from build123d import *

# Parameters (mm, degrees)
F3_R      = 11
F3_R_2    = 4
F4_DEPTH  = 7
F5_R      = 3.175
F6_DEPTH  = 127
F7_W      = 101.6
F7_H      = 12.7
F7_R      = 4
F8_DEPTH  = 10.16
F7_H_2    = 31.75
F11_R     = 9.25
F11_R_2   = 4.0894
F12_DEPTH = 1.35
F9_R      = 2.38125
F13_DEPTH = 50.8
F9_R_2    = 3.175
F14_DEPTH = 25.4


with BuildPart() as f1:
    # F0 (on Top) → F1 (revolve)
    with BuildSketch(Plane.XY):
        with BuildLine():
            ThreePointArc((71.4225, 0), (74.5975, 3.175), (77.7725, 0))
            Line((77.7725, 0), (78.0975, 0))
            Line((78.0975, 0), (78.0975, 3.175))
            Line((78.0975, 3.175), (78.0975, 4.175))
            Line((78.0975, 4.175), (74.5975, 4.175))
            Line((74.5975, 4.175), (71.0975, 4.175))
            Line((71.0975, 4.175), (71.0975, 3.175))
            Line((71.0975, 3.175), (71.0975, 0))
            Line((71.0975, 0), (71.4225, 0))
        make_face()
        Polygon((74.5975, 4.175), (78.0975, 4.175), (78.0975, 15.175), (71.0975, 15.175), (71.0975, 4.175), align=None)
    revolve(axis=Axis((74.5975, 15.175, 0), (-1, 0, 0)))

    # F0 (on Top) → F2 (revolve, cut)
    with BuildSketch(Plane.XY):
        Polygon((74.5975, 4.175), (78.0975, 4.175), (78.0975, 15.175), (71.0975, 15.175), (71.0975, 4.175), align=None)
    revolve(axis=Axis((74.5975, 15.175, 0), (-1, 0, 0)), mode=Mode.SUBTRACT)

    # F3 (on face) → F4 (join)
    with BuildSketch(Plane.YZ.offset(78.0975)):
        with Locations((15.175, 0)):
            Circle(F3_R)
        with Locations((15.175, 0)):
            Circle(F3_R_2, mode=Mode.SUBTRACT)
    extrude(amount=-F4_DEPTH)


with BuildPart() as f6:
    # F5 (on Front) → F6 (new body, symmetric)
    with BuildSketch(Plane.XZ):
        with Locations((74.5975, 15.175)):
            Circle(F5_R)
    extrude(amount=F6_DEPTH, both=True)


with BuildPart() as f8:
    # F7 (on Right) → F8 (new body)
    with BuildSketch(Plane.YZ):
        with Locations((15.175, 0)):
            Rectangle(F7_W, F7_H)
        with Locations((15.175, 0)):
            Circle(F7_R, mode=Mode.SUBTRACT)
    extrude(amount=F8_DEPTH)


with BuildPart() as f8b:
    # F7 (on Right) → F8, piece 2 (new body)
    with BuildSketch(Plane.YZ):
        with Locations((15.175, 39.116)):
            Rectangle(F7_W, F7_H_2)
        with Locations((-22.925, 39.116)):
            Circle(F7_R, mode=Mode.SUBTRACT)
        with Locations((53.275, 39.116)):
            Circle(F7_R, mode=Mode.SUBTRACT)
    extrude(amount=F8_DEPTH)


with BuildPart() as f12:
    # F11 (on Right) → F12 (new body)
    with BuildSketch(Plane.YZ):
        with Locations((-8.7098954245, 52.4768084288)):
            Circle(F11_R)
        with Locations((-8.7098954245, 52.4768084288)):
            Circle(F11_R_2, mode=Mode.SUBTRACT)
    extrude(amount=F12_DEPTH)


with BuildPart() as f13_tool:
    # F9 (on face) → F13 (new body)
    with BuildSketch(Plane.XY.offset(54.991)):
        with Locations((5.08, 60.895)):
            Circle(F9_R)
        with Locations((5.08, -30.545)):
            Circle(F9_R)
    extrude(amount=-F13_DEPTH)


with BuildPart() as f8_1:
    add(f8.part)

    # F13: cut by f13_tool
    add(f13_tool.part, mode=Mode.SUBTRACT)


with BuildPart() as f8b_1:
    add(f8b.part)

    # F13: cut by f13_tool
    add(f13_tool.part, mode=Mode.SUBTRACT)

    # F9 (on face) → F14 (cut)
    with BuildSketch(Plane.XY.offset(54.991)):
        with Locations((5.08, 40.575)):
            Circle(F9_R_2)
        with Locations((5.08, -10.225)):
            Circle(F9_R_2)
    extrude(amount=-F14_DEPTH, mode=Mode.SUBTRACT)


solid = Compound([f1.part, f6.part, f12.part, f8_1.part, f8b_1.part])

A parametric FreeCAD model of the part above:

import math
import FreeCAD as App
import Part
import Sketcher

V = App.Vector
Q = App.Units.Quantity

doc = App.newDocument("Part")
body = doc.addObject("PartDesign::Body", "Body")

sketch1 = body.newObject("Sketcher::SketchObject", "Sketch")
sketch1.AttachmentSupport = (doc.getObject("XY_Plane"), [""])
sketch1.MapMode = "FlatFace"
sketch1.addGeometry([
    Part.ArcOfCircle(Part.Circle(V(74.5975, 0, 0), V(0, 0, 1), 3.175), math.radians(0), math.radians(180)),
    Part.LineSegment(V(77.7725, 0, 0), V(78.0975, 0, 0)),
    Part.LineSegment(V(78.0975, 0, 0), V(78.0975, 15.175, 0)),
    Part.LineSegment(V(78.0975, 15.175, 0), V(71.0975, 15.175, 0)),
    Part.LineSegment(V(71.0975, 15.175, 0), V(71.0975, 0, 0)),
    Part.LineSegment(V(71.0975, 0, 0), V(71.4225, 0, 0)),
], False)
sketch1.addGeometry(Part.LineSegment(V(78.0975, 15.175, 0), V(71.0975, 15.175, 0)), True)
sketch1.addConstraint([
    Sketcher.Constraint("Coincident", 0, 1, 1, 1),
    Sketcher.Constraint("Coincident", 1, 2, 2, 1),
    Sketcher.Constraint("Coincident", 2, 2, 3, 1),
    Sketcher.Constraint("Coincident", 3, 2, 4, 1),
    Sketcher.Constraint("Coincident", 4, 2, 5, 1),
    Sketcher.Constraint("Coincident", 5, 2, 0, 2),
    Sketcher.Constraint("Horizontal", 1),
    Sketcher.Constraint("Vertical", 2),
    Sketcher.Constraint("Horizontal", 3),
    Sketcher.Constraint("Vertical", 4),
    Sketcher.Constraint("Horizontal", 5),
    Sketcher.Constraint("Horizontal", 6),
    Sketcher.Constraint("Coincident", 6, 1, 2, 2),
    Sketcher.Constraint("PointOnObject", 0, 3, -1),
    Sketcher.Constraint("PointOnObject", 0, 1, -1),
    Sketcher.Constraint("PointOnObject", 4, 2, -1),
    Sketcher.Constraint("Vertical", 4, 2, 6, 2),
    Sketcher.Constraint("Equal", 1, 5),
    Sketcher.Constraint("Radius", 0, Q("0.125 in")),
    Sketcher.Constraint("DistanceX", 1, 1, 1, 2, Q("0.325 mm")),
    Sketcher.Constraint("DistanceY", 2, 1, 2, 2, Q("15.175 mm")),
    Sketcher.Constraint("DistanceX", -1, 1, 0, 3, Q("74.5975 mm")),
])
revolution = body.newObject("PartDesign::Revolution", "Revolution")
revolution.Profile = sketch1
revolution.ReferenceAxis = (sketch1, ["Axis0"])
revolution.Angle = 360

sketch2 = body.newObject("Sketcher::SketchObject", "Sketch001")
sketch2.AttachmentSupport = (doc.getObject("XY_Plane"), [""])
sketch2.MapMode = "FlatFace"
sketch2.addGeometry([
    Part.LineSegment(V(78.0975, 4.175, 0), V(78.0975, 15.175, 0)),
    Part.LineSegment(V(78.0975, 15.175, 0), V(71.0975, 15.175, 0)),
    Part.LineSegment(V(71.0975, 15.175, 0), V(71.0975, 4.175, 0)),
    Part.LineSegment(V(71.0975, 4.175, 0), V(78.0975, 4.175, 0)),
], False)
sketch2.addGeometry(Part.LineSegment(V(78.0975, 15.175, 0), V(71.0975, 15.175, 0)), True)
sketch2.addConstraint([
    Sketcher.Constraint("Coincident", 0, 2, 1, 1),
    Sketcher.Constraint("Coincident", 1, 2, 2, 1),
    Sketcher.Constraint("Coincident", 2, 2, 3, 1),
    Sketcher.Constraint("Coincident", 3, 2, 0, 1),
    Sketcher.Constraint("Vertical", 0),
    Sketcher.Constraint("Horizontal", 1),
    Sketcher.Constraint("Vertical", 2),
    Sketcher.Constraint("Horizontal", 3),
    Sketcher.Constraint("Horizontal", 4),
    Sketcher.Constraint("Coincident", 4, 1, 0, 2),
    Sketcher.Constraint("Vertical", 2, 2, 4, 2),
    Sketcher.Constraint("DistanceX", 1, 2, 1, 1, Q("7 mm")),
    Sketcher.Constraint("DistanceY", 0, 1, 0, 2, Q("11 mm")),
    Sketcher.Constraint("DistanceX", -1, 1, 0, 2, Q("78.0975 mm")),
    Sketcher.Constraint("DistanceY", -1, 1, 0, 2, Q("15.175 mm")),
])
groove = body.newObject("PartDesign::Groove", "Groove")
groove.Profile = sketch2
groove.ReferenceAxis = (sketch2, ["Axis0"])
groove.Angle = 360

sketch3 = body.newObject("Sketcher::SketchObject", "Sketch002")
sketch3.AttachmentSupport = (doc.getObject("YZ_Plane"), [""])
sketch3.MapMode = "FlatFace"
sketch3.AttachmentOffset = App.Placement(V(0, 0, 78.0975), App.Rotation())
sketch3.addGeometry([
    Part.Circle(V(15.175, 0, 0), V(0, 0, 1), 11),
    Part.Circle(V(15.175, 0, 0), V(0, 0, 1), 4),
], False)
sketch3.addConstraint([
    Sketcher.Constraint("Coincident", 1, 3, 0, 3),
    Sketcher.Constraint("PointOnObject", 0, 3, -1),
    Sketcher.Constraint("Diameter", 0, Q("22 mm")),
    Sketcher.Constraint("Diameter", 1, Q("8 mm")),
    Sketcher.Constraint("DistanceX", -1, 1, 0, 3, Q("15.175 mm")),
])
pad1 = body.newObject("PartDesign::Pad", "Pad")
pad1.Profile = sketch3
pad1.Length = 7
pad1.Reversed = True
body2 = doc.addObject("PartDesign::Body", "Body001")

sketch4 = body2.newObject("Sketcher::SketchObject", "Sketch003")
sketch4.AttachmentSupport = (doc.getObject("XZ_Plane001"), [""])
sketch4.MapMode = "FlatFace"
sketch4.addGeometry(Part.Circle(V(74.5975, 15.175, 0), V(0, 0, 1), 3.175), False)
sketch4.addConstraint([
    Sketcher.Constraint("Diameter", 0, Q("0.25 in")),
    Sketcher.Constraint("DistanceX", -1, 1, 0, 3, Q("74.5975 mm")),
    Sketcher.Constraint("DistanceY", -1, 1, 0, 3, Q("15.175 mm")),
])
pad2 = body2.newObject("PartDesign::Pad", "Pad001")
pad2.Profile = sketch4
pad2.Length = Q("10 in")
pad2.Midplane = True
body3 = doc.addObject("PartDesign::Body", "Body002")

sketch5 = body3.newObject("Sketcher::SketchObject", "Sketch004")
sketch5.AttachmentSupport = (doc.getObject("YZ_Plane002"), [""])
sketch5.MapMode = "FlatFace"
sketch5.addGeometry([
    Part.LineSegment(V(-35.625, 6.35, 0), V(-35.625, -6.35, 0)),
    Part.LineSegment(V(-35.625, -6.35, 0), V(65.975, -6.35, 0)),
    Part.LineSegment(V(65.975, -6.35, 0), V(65.975, 6.35, 0)),
    Part.LineSegment(V(65.975, 6.35, 0), V(-35.625, 6.35, 0)),
    Part.Circle(V(15.175, 0, 0), V(0, 0, 1), 4),
], False)
sketch5.addConstraint([
    Sketcher.Constraint("Coincident", 0, 2, 1, 1),
    Sketcher.Constraint("Coincident", 1, 2, 2, 1),
    Sketcher.Constraint("Coincident", 2, 2, 3, 1),
    Sketcher.Constraint("Coincident", 3, 2, 0, 1),
    Sketcher.Constraint("Vertical", 0),
    Sketcher.Constraint("Horizontal", 1),
    Sketcher.Constraint("Vertical", 2),
    Sketcher.Constraint("Horizontal", 3),
    Sketcher.Constraint("PointOnObject", 4, 3, -1),
    Sketcher.Constraint("DistanceX", 1, 1, 1, 2, Q("4 in")),
    Sketcher.Constraint("DistanceY", 0, 2, 0, 1, Q("0.5 in")),
    Sketcher.Constraint("DistanceX", 0, 2, 4, 3, Q("2 in")),
    Sketcher.Constraint("Diameter", 4, Q("8 mm")),
    Sketcher.Constraint("DistanceY", 0, 2, -1, 1, Q("0.25 in")),
    Sketcher.Constraint("DistanceX", -1, 1, 4, 3, Q("15.175 mm")),
])
pad3 = body3.newObject("PartDesign::Pad", "Pad002")
pad3.Profile = sketch5
pad3.Length = Q("0.4 in")
body4 = doc.addObject("PartDesign::Body", "Body003")

sketch6 = body4.newObject("Sketcher::SketchObject", "Sketch005")
sketch6.AttachmentSupport = (doc.getObject("YZ_Plane003"), [""])
sketch6.MapMode = "FlatFace"
sketch6.addGeometry([
    Part.LineSegment(V(-35.625, 54.991, 0), V(-35.625, 23.241, 0)),
    Part.LineSegment(V(-35.625, 23.241, 0), V(65.975, 23.241, 0)),
    Part.LineSegment(V(65.975, 23.241, 0), V(65.975, 54.991, 0)),
    Part.LineSegment(V(65.975, 54.991, 0), V(-35.625, 54.991, 0)),
    Part.Circle(V(-22.925, 39.116, 0), V(0, 0, 1), 4),
    Part.Circle(V(53.275, 39.116, 0), V(0, 0, 1), 4),
], False)
sketch6.addConstraint([
    Sketcher.Constraint("Coincident", 0, 2, 1, 1),
    Sketcher.Constraint("Coincident", 1, 2, 2, 1),
    Sketcher.Constraint("Coincident", 2, 2, 3, 1),
    Sketcher.Constraint("Coincident", 3, 2, 0, 1),
    Sketcher.Constraint("Vertical", 0),
    Sketcher.Constraint("Horizontal", 1),
    Sketcher.Constraint("Vertical", 2),
    Sketcher.Constraint("Horizontal", 3),
    Sketcher.Constraint("Equal", 4, 5),
    Sketcher.Constraint("Horizontal", 4, 3, 5, 3),
    Sketcher.Constraint("DistanceX", 1, 1, 1, 2, Q("4 in")),
    Sketcher.Constraint("DistanceX", 4, 3, 5, 3, Q("3 in")),
    Sketcher.Constraint("DistanceY", 0, 2, 0, 1, Q("1.25 in")),
    Sketcher.Constraint("DistanceX", 0, 2, 4, 3, Q("0.5 in")),
    Sketcher.Constraint("Diameter", 4, Q("8 mm")),
    Sketcher.Constraint("DistanceY", -1, 1, 4, 3, Q("1.54 in")),
    Sketcher.Constraint("DistanceY", -1, 1, 0, 2, Q("0.915 in")),
    Sketcher.Constraint("DistanceX", 4, 3, -1, 1, Q("22.925 mm")),
])
pad4 = body4.newObject("PartDesign::Pad", "Pad003")
pad4.Profile = sketch6
pad4.Length = Q("0.4 in")
body5 = doc.addObject("PartDesign::Body", "Body004")

sketch7 = body5.newObject("Sketcher::SketchObject", "Sketch006")
sketch7.AttachmentSupport = (doc.getObject("YZ_Plane004"), [""])
sketch7.MapMode = "FlatFace"
sketch7.addGeometry([
    Part.Circle(V(-8.709895, 52.476808, 0), V(0, 0, 1), 9.25),
    Part.Circle(V(-8.709895, 52.476808, 0), V(0, 0, 1), 4.0894),
], False)
sketch7.addConstraint([
    Sketcher.Constraint("Coincident", 1, 3, 0, 3),
    Sketcher.Constraint("Diameter", 1, Q("0.322 in")),
    Sketcher.Constraint("Diameter", 0, Q("18.5 mm")),
    Sketcher.Constraint("DistanceY", -1, 1, 0, 3, Q("52.476808 mm")),
    Sketcher.Constraint("DistanceX", 0, 3, -1, 1, Q("8.709895 mm")),
])
pad5 = body5.newObject("PartDesign::Pad", "Pad004")
pad5.Profile = sketch7
pad5.Length = 1.35
body6 = doc.addObject("PartDesign::Body", "Body005")
body6.AllowCompound = True

sketch8 = body6.newObject("Sketcher::SketchObject", "Sketch007")
sketch8.AttachmentSupport = (doc.getObject("XY_Plane005"), [""])
sketch8.MapMode = "FlatFace"
sketch8.AttachmentOffset = App.Placement(V(0, 0, 2.165 * 25.4), App.Rotation())
sketch8.addGeometry([
    Part.Circle(V(5.08, 60.895, 0), V(0, 0, 1), 2.38125),
    Part.Circle(V(5.08, -30.545, 0), V(0, 0, 1), 2.38125),
], False)
sketch8.addConstraint([
    Sketcher.Constraint("Equal", 0, 1),
    Sketcher.Constraint("Vertical", 0, 3, 1, 3),
    Sketcher.Constraint("Diameter", 0, Q("0.1875 in")),
    Sketcher.Constraint("DistanceX", -1, 1, 0, 3, Q("0.2 in")),
    Sketcher.Constraint("DistanceY", 1, 3, 0, 3, Q("3.6 in")),
    Sketcher.Constraint("DistanceY", -1, 1, 0, 3, Q("60.895 mm")),
])
pad6 = body6.newObject("PartDesign::Pad", "Pad005")
pad6.Profile = sketch8
pad6.Length = Q("2 in")
pad6.Reversed = True
doc.recompute()

body7 = doc.addObject("PartDesign::Body", "Body006")
body7.BaseFeature = body6
boolean = body3.newObject("PartDesign::Boolean", "Boolean")
boolean.Type = "Cut"
boolean.addObjects([body7])
doc.recompute()

boolean2 = body4.newObject("PartDesign::Boolean", "Boolean001")
boolean2.Type = "Cut"
boolean2.addObjects([body6])

sketch9 = body4.newObject("Sketcher::SketchObject", "Sketch008")
sketch9.AttachmentSupport = (doc.getObject("XY_Plane003"), [""])
sketch9.MapMode = "FlatFace"
sketch9.AttachmentOffset = App.Placement(V(0, 0, 2.165 * 25.4), App.Rotation())
sketch9.addGeometry([
    Part.Circle(V(5.08, 40.575, 0), V(0, 0, 1), 3.175),
    Part.Circle(V(5.08, -10.225, 0), V(0, 0, 1), 3.175),
], False)
sketch9.addConstraint([
    Sketcher.Constraint("Equal", 0, 1),
    Sketcher.Constraint("Vertical", 0, 3, 1, 3),
    Sketcher.Constraint("Diameter", 0, Q("0.25 in")),
    Sketcher.Constraint("DistanceY", 1, 3, 0, 3, Q("2 in")),
    Sketcher.Constraint("DistanceX", -1, 1, 0, 3, Q("0.2 in")),
    Sketcher.Constraint("DistanceY", -1, 1, 0, 3, Q("40.575 mm")),
])
pocket1 = body4.newObject("PartDesign::Pocket", "Pocket")
pocket1.Profile = sketch9
pocket1.Length = Q("1 in")

doc.recompute()
